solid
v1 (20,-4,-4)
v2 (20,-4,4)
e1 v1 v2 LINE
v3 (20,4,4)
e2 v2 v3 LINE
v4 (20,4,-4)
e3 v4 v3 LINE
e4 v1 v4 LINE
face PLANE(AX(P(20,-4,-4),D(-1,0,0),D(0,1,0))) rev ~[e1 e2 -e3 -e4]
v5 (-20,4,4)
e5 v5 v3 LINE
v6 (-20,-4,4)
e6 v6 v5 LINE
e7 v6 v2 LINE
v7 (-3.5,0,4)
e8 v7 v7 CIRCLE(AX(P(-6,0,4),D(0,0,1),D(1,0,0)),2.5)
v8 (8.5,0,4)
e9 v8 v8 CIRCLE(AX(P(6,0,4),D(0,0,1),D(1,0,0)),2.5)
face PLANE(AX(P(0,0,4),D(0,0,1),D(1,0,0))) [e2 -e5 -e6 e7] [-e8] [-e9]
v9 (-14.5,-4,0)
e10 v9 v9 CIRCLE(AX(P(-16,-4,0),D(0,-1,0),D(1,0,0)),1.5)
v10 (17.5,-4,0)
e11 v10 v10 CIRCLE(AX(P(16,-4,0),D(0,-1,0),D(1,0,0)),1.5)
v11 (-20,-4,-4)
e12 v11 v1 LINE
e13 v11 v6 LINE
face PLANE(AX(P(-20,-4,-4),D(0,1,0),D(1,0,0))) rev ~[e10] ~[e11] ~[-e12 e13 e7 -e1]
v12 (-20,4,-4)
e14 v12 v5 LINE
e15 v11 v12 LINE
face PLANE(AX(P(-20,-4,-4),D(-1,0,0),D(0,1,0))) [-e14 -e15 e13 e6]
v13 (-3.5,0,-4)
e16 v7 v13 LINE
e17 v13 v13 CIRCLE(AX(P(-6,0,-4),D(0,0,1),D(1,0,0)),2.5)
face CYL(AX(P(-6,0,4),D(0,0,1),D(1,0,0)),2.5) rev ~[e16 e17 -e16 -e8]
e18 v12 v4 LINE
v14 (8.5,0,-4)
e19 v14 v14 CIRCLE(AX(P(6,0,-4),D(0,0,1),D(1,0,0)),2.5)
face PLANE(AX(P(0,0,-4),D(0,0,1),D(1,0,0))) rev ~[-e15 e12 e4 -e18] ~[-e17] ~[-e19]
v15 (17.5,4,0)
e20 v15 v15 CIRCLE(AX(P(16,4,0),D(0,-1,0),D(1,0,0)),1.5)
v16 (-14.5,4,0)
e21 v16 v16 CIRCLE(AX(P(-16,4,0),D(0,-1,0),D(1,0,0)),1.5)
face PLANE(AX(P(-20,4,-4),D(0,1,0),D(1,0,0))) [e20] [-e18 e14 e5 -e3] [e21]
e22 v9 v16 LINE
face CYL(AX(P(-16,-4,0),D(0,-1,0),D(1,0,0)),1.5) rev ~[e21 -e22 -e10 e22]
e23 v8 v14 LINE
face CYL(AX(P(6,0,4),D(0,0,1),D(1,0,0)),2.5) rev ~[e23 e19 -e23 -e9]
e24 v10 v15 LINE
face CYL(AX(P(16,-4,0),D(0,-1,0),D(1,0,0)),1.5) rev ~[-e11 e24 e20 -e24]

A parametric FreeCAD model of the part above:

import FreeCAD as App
import Part
import Sketcher
Q = App.Units.Quantity

doc = App.newDocument("Part")
body = doc.addObject("PartDesign::Body", "Body")

sketch1 = body.newObject("Sketcher::SketchObject", "Sketch")
sketch1.AttachmentSupport = (doc.getObject("XY_Plane"), [""])
sketch1.MapMode = "FlatFace"
sketch1.AttachmentOffset = App.Placement(App.Vector(0, 0, -4), App.Rotation())
sketch1.addGeometry([
    Part.LineSegment(App.Vector(-20, 4, 0), App.Vector(-20, -4, 0)),
    Part.LineSegment(App.Vector(-20, -4, 0), App.Vector(20, -4, 0)),
    Part.LineSegment(App.Vector(20, -4, 0), App.Vector(20, 4, 0)),
    Part.LineSegment(App.Vector(20, 4, 0), App.Vector(-20, 4, 0)),
], False)
sketch1.addConstraint([
    Sketcher.Constraint("Coincident", 0, 2, 1, 1),
    Sketcher.Constraint("Coincident", 1, 2, 2, 1),
    Sketcher.Constraint("Coincident", 2, 2, 3, 1),
    Sketcher.Constraint("Coincident", 3, 2, 0, 1),
    Sketcher.Constraint("Vertical", 0),
    Sketcher.Constraint("Horizontal", 1),
    Sketcher.Constraint("Vertical", 2),
    Sketcher.Constraint("Horizontal", 3),
    Sketcher.Constraint("Symmetric", 0, 2, 2, 2, -1, 1),
    Sketcher.Constraint("DistanceX", 1, 1, 1, 2, Q("40 mm")),
    Sketcher.Constraint("DistanceY", 0, 2, 0, 1, Q("8 mm")),
])
pad1 = body.newObject("PartDesign::Pad", "Pad")
pad1.Profile = sketch1
pad1.Length = 8

sketch2 = body.newObject("Sketcher::SketchObject", "Sketch001")
sketch2.AttachmentSupport = (doc.getObject("XY_Plane"), [""])
sketch2.MapMode = "FlatFace"
sketch2.AttachmentOffset = App.Placement(App.Vector(0, 0, 4), App.Rotation())
sketch2.addGeometry([
    Part.Circle(App.Vector(6, 0, 0), App.Vector(0, 0, 1), 2.5),
    Part.Circle(App.Vector(-6, 0, 0), App.Vector(0, 0, 1), 2.5),
], False)
sketch2.addConstraint([
    Sketcher.Constraint("Equal", 0, 1),
    Sketcher.Constraint("Symmetric", 0, 3, 1, 3, -1, 1),
    Sketcher.Constraint("PointOnObject", 0, 3, -1),
    Sketcher.Constraint("Diameter", 0, Q("5 mm")),
    Sketcher.Constraint("DistanceX", -1, 1, 0, 3, Q("6 mm")),
])
pocket1 = body.newObject("PartDesign::Pocket", "Pocket")
pocket1.Profile = sketch2
pocket1.Length = 8

sketch3 = body.newObject("Sketcher::SketchObject", "Sketch002")
sketch3.AttachmentSupport = (doc.getObject("XZ_Plane"), [""])
sketch3.MapMode = "FlatFace"
sketch3.AttachmentOffset = App.Placement(App.Vector(0, 0, 4), App.Rotation())
sketch3.addGeometry([
    Part.Circle(App.Vector(-16, 0, 0), App.Vector(0, 0, 1), 1.5),
    Part.Circle(App.Vector(16, 0, 0), App.Vector(0, 0, 1), 1.5),
], False)
sketch3.addConstraint([
    Sketcher.Constraint("Equal", 0, 1),
    Sketcher.Constraint("Symmetric", 0, 3, 1, 3, -1, 1),
    Sketcher.Constraint("PointOnObject", 0, 3, -1),
    Sketcher.Constraint("Diameter", 0, Q("3 mm")),
    Sketcher.Constraint("DistanceX", 0, 3, -1, 1, Q("16 mm")),
])
pocket2 = body.newObject("PartDesign::Pocket", "Pocket001")
pocket2.Profile = sketch3
pocket2.Length = 8

doc.recompute()
